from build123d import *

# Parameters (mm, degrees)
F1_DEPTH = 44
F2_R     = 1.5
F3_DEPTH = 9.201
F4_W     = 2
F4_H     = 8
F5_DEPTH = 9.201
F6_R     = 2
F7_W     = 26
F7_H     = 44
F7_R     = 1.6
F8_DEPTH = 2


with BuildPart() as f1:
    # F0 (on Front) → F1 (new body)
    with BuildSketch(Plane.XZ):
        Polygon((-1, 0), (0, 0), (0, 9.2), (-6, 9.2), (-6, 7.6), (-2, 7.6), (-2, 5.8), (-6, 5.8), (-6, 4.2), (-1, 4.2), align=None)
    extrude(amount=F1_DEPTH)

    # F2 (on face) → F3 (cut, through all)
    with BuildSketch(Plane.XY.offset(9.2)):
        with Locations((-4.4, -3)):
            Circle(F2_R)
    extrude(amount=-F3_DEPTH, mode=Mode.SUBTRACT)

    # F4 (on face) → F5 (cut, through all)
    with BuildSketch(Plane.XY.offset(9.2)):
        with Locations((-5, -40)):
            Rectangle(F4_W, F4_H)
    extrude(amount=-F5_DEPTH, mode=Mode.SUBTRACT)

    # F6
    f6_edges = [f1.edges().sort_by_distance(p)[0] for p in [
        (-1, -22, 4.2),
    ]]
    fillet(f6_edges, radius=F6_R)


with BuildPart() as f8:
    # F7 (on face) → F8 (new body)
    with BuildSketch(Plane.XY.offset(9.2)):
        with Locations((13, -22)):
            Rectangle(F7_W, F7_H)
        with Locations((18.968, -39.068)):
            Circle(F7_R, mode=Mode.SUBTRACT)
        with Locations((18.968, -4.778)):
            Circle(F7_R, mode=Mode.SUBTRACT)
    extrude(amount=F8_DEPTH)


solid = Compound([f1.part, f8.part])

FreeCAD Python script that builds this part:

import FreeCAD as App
import Part
import Sketcher
from FreeCAD import Vector


def edges_at(feature, points):
    """Names of the edges that pass closest to the given points."""
    edges = feature.Shape.Edges
    near = lambda p: min(range(len(edges)), key=lambda i: edges[i].distToShape(Part.Vertex(*p))[0])
    return sorted({f"Edge{near(p) + 1}" for p in points})

doc = App.newDocument("Part")
body = doc.addObject("PartDesign::Body", "Body")

# Sketch on XZ plane
sketch1 = body.newObject("Sketcher::SketchObject", "Sketch")
sketch1.AttachmentSupport = (doc.getObject("XZ_Plane"), [""])
sketch1.MapMode = "FlatFace"
sketch1.addGeometry(Part.LineSegment(Vector(-1, 0, 0), Vector(0, 0, 0)), False)
sketch1.addGeometry(Part.LineSegment(Vector(0, 0, 0), Vector(0, 9.2, 0)), False)
sketch1.addGeometry(Part.LineSegment(Vector(0, 9.2, 0), Vector(-6, 9.2, 0)), False)
sketch1.addGeometry(Part.LineSegment(Vector(-6, 9.2, 0), Vector(-6, 7.6, 0)), False)
sketch1.addGeometry(Part.LineSegment(Vector(-6, 7.6, 0), Vector(-2, 7.6, 0)), False)
sketch1.addGeometry(Part.LineSegment(Vector(-2, 7.6, 0), Vector(-2, 5.8, 0)), False)
sketch1.addGeometry(Part.LineSegment(Vector(-2, 5.8, 0), Vector(-6, 5.8, 0)), False)
sketch1.addGeometry(Part.LineSegment(Vector(-6, 5.8, 0), Vector(-6, 4.2, 0)), False)
sketch1.addGeometry(Part.LineSegment(Vector(-6, 4.2, 0), Vector(-1, 4.2, 0)), False)
sketch1.addGeometry(Part.LineSegment(Vector(-1, 4.2, 0), Vector(-1, 0, 0)), False)
sketch1.addConstraint(Sketcher.Constraint("Coincident", 0, 2, 1, 1))
sketch1.addConstraint(Sketcher.Constraint("Coincident", 1, 2, 2, 1))
sketch1.addConstraint(Sketcher.Constraint("Coincident", 2, 2, 3, 1))
sketch1.addConstraint(Sketcher.Constraint("Coincident", 3, 2, 4, 1))
sketch1.addConstraint(Sketcher.Constraint("Coincident", 4, 2, 5, 1))
sketch1.addConstraint(Sketcher.Constraint("Coincident", 5, 2, 6, 1))
sketch1.addConstraint(Sketcher.Constraint("Coincident", 6, 2, 7, 1))
sketch1.addConstraint(Sketcher.Constraint("Coincident", 7, 2, 8, 1))
sketch1.addConstraint(Sketcher.Constraint("Coincident", 8, 2, 9, 1))
sketch1.addConstraint(Sketcher.Constraint("Coincident", 9, 2, 0, 1))
sketch1.addConstraint(Sketcher.Constraint("Horizontal", 0))
sketch1.addConstraint(Sketcher.Constraint("Vertical", 1))
sketch1.addConstraint(Sketcher.Constraint("Horizontal", 2))
sketch1.addConstraint(Sketcher.Constraint("Vertical", 3))
sketch1.addConstraint(Sketcher.Constraint("Horizontal", 4))
sketch1.addConstraint(Sketcher.Constraint("Vertical", 5))
sketch1.addConstraint(Sketcher.Constraint("Horizontal", 6))
sketch1.addConstraint(Sketcher.Constraint("Vertical", 7))
sketch1.addConstraint(Sketcher.Constraint("Horizontal", 8))
sketch1.addConstraint(Sketcher.Constraint("Vertical", 9))
sketch1.addConstraint(Sketcher.Constraint("Coincident", 0, 2, -1, 1))
sketch1.addConstraint(Sketcher.Constraint("Vertical", 3, 2, 6, 2))
sketch1.addConstraint(Sketcher.Constraint("Equal", 3, 7))
sketch1.addConstraint(Sketcher.Constraint("DistanceX", 0, 1, 0, 2, 1.0))
sketch1.addConstraint(Sketcher.Constraint("DistanceX", 2, 2, 2, 1, 6.0))
sketch1.addConstraint(Sketcher.Constraint("DistanceX", 4, 1, 4, 2, 4.0))
sketch1.addConstraint(Sketcher.Constraint("DistanceY", 1, 1, 1, 2, 9.2))
sketch1.addConstraint(Sketcher.Constraint("DistanceY", 3, 2, 3, 1, 1.6))
sketch1.addConstraint(Sketcher.Constraint("DistanceY", 5, 2, 5, 1, 1.8))
pad1 = body.newObject("PartDesign::Pad", "Pad")
pad1.Profile = sketch1
pad1.Length = 44

# Sketch on XY plane
sketch2 = body.newObject("Sketcher::SketchObject", "Sketch001")
sketch2.AttachmentSupport = (doc.getObject("XY_Plane"), [""])
sketch2.MapMode = "FlatFace"
sketch2.AttachmentOffset = App.Placement(Vector(0, 0, 9.2), App.Rotation())
sketch2.addGeometry(Part.Circle(Vector(-4.4, -3, 0), Vector(0, 0, 1), 1.5), False)
sketch2.addConstraint(Sketcher.Constraint("Diameter", 0, 3.0))
sketch2.addConstraint(Sketcher.Constraint("DistanceY", 0, 3, -1, 1, 3.0))
sketch2.addConstraint(Sketcher.Constraint("DistanceX", 0, 3, -1, 1, 4.4))
pocket1 = body.newObject("PartDesign::Pocket", "Pocket")
pocket1.Profile = sketch2
pocket1.Type = "ThroughAll"

# Sketch on XY plane
sketch3 = body.newObject("Sketcher::SketchObject", "Sketch002")
sketch3.AttachmentSupport = (doc.getObject("XY_Plane"), [""])
sketch3.MapMode = "FlatFace"
sketch3.AttachmentOffset = App.Placement(Vector(0, 0, 9.2), App.Rotation())
sketch3.addGeometry(Part.LineSegment(Vector(-6, -36, 0), Vector(-6, -44, 0)), False)
sketch3.addGeometry(Part.LineSegment(Vector(-6, -44, 0), Vector(-4, -44, 0)), False)
sketch3.addGeometry(Part.LineSegment(Vector(-4, -44, 0), Vector(-4, -36, 0)), False)
sketch3.addGeometry(Part.LineSegment(Vector(-4, -36, 0), Vector(-6, -36, 0)), False)
sketch3.addConstraint(Sketcher.Constraint("Coincident", 0, 2, 1, 1))
sketch3.addConstraint(Sketcher.Constraint("Coincident", 1, 2, 2, 1))
sketch3.addConstraint(Sketcher.Constraint("Coincident", 2, 2, 3, 1))
sketch3.addConstraint(Sketcher.Constraint("Coincident", 3, 2, 0, 1))
sketch3.addConstraint(Sketcher.Constraint("Vertical", 0))
sketch3.addConstraint(Sketcher.Constraint("Horizontal", 1))
sketch3.addConstraint(Sketcher.Constraint("Vertical", 2))
sketch3.addConstraint(Sketcher.Constraint("Horizontal", 3))
sketch3.addConstraint(Sketcher.Constraint("DistanceX", 1, 1, 1, 2, 2.0))
sketch3.addConstraint(Sketcher.Constraint("DistanceY", 0, 2, 0, 1, 8.0))
sketch3.addConstraint(Sketcher.Constraint("DistanceX", 0, 2, -1, 1, 6.0))
sketch3.addConstraint(Sketcher.Constraint("DistanceY", 0, 2, -1, 1, 44.0))
pocket2 = body.newObject("PartDesign::Pocket", "Pocket001")
pocket2.Profile = sketch3
pocket2.Type = "ThroughAll"
doc.recompute()

fillet = body.newObject("PartDesign::Fillet", "Fillet")
fillet.Base = (pocket2, edges_at(pocket2, [(-1, -22, 4.2)]))
fillet.Radius = 2
body2 = doc.addObject("PartDesign::Body", "Body001")

# Sketch on XY plane
sketch4 = body2.newObject("Sketcher::SketchObject", "Sketch003")
sketch4.AttachmentSupport = (doc.getObject("XY_Plane001"), [""])
sketch4.MapMode = "FlatFace"
sketch4.AttachmentOffset = App.Placement(Vector(0, 0, 9.2), App.Rotation())
sketch4.addGeometry(Part.LineSegment(Vector(0, 0, 0), Vector(0, -44, 0)), False)
sketch4.addGeometry(Part.LineSegment(Vector(0, -44, 0), Vector(26, -44, 0)), False)
sketch4.addGeometry(Part.LineSegment(Vector(26, -44, 0), Vector(26, 0, 0)), False)
sketch4.addGeometry(Part.LineSegment(Vector(26, 0, 0), Vector(0, 0, 0)), False)
sketch4.addGeometry(Part.Circle(Vector(19, -39.1, 0), Vector(0, 0, 1), 1.6), False)
sketch4.addGeometry(Part.Circle(Vector(19, -4.8, 0), Vector(0, 0, 1), 1.6), False)
sketch4.addConstraint(Sketcher.Constraint("Coincident", 0, 2, 1, 1))
sketch4.addConstraint(Sketcher.Constraint("Coincident", 1, 2, 2, 1))
sketch4.addConstraint(Sketcher.Constraint("Coincident", 2, 2, 3, 1))
sketch4.addConstraint(Sketcher.Constraint("Coincident", 3, 2, 0, 1))
sketch4.addConstraint(Sketcher.Constraint("Vertical", 0))
sketch4.addConstraint(Sketcher.Constraint("Horizontal", 1))
sketch4.addConstraint(Sketcher.Constraint("Vertical", 2))
sketch4.addConstraint(Sketcher.Constraint("Horizontal", 3))
sketch4.addConstraint(Sketcher.Constraint("Coincident", 3, 2, -1, 1))
sketch4.addConstraint(Sketcher.Constraint("Equal", 4, 5))
sketch4.addConstraint(Sketcher.Constraint("Vertical", 4, 3, 5, 3))
sketch4.addConstraint(Sketcher.Constraint("Diameter", 4, 3.2))
sketch4.addConstraint(Sketcher.Constraint("DistanceX", 1, 1, 1, 2, 26.0))
sketch4.addConstraint(Sketcher.Constraint("DistanceY", 0, 2, 0, 1, 44.0))
sketch4.addConstraint(Sketcher.Constraint("DistanceY", 4, 3, 5, 3, 34.29))
sketch4.addConstraint(Sketcher.Constraint("DistanceX", -1, 1, 4, 3, 18.968))
sketch4.addConstraint(Sketcher.Constraint("DistanceY", 4, 3, -1, 1, 39.068))
pad2 = body2.newObject("PartDesign::Pad", "Pad001")
pad2.Profile = sketch4
pad2.Length = 2

doc.recompute()
